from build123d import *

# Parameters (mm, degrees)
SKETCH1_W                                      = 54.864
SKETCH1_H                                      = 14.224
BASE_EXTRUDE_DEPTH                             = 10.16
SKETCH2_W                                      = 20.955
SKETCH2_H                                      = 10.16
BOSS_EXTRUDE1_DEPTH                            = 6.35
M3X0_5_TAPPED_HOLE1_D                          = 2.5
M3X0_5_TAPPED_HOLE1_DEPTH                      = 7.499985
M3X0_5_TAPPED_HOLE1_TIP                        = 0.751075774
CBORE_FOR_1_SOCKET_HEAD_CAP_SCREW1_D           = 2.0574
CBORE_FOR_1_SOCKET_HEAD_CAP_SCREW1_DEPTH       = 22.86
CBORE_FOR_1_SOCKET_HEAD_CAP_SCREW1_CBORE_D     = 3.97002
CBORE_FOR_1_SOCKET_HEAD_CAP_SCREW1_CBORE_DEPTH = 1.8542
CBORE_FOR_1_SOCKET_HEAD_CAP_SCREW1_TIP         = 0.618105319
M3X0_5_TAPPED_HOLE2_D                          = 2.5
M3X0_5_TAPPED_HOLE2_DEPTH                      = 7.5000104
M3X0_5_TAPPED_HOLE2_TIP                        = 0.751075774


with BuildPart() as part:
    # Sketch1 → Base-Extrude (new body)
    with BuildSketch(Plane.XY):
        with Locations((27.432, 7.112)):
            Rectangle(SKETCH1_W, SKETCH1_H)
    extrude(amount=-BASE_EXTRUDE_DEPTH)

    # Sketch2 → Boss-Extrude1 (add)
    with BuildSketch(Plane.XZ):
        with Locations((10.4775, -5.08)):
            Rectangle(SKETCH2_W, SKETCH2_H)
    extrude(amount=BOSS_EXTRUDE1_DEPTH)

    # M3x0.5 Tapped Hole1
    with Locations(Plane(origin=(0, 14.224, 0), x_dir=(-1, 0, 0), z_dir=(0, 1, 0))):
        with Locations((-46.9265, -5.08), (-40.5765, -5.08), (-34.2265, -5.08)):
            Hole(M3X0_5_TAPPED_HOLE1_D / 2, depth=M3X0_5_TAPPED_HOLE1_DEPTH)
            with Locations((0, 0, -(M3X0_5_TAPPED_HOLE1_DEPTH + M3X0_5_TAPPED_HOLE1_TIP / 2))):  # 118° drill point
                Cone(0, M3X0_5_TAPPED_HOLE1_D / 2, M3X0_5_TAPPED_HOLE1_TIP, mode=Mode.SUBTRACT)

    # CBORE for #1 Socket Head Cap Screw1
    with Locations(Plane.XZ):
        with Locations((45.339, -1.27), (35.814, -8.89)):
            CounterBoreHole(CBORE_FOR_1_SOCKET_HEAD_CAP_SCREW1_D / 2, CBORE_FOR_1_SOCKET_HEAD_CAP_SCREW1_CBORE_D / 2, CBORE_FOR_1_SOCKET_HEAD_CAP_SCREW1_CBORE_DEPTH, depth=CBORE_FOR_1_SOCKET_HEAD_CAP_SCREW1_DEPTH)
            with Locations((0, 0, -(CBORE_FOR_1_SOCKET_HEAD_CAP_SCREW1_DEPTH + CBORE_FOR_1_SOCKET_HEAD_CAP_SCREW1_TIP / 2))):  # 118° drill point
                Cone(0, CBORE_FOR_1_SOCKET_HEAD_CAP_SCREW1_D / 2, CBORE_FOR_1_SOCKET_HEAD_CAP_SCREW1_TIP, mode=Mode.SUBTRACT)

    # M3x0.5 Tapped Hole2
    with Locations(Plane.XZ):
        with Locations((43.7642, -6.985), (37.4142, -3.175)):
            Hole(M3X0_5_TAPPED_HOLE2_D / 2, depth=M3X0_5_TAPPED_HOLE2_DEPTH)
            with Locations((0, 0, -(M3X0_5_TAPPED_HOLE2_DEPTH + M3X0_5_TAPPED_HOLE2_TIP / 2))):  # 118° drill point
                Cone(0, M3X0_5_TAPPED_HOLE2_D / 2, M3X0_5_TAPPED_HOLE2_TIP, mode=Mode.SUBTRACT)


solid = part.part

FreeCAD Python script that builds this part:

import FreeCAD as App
import Part
import Sketcher
Q = App.Units.Quantity


def add_polygon(sketch, points):
    """Adds a closed chain of lines whose ends are joined by coincident constraints."""
    first, n = sketch.GeometryCount, len(points)
    for a, b in zip(points, points[1:] + points[:1]):
        sketch.addGeometry(Part.LineSegment(App.Vector(*a, 0), App.Vector(*b, 0)), False)
    for i in range(n):
        sketch.addConstraint(Sketcher.Constraint("Coincident", first + i, 2, first + (i + 1) % n, 1))

doc = App.newDocument("Part")
body = doc.addObject("PartDesign::Body", "Body")

# Sketch on XY plane
sketch1 = doc.addObject("Sketcher::SketchObject", "Sketch")
body.addObject(sketch1)
sketch1.AttachmentSupport = (doc.XY_Plane, [""])
sketch1.MapMode = "FlatFace"
add_polygon(sketch1, [(0, 14), (0, 0), (55, 0), (55, 14)])  # lines 0-3
sketch1.addConstraint([
    Sketcher.Constraint("Vertical", 0),
    Sketcher.Constraint("Horizontal", 1),
    Sketcher.Constraint("Vertical", 2),
    Sketcher.Constraint("Horizontal", 3),
    Sketcher.Constraint("Coincident", 0, 2, -1, 1),
    Sketcher.Constraint("DistanceX", 1, 1, 1, 2, Q("2.16 in")),
    Sketcher.Constraint("DistanceY", 0, 2, 0, 1, Q("0.56 in")),
])
pad1 = doc.addObject("PartDesign::Pad", "Pad")
body.addObject(pad1)
pad1.Profile = sketch1
pad1.Length = Q("0.4 in")
pad1.Reversed = True

# Sketch on XZ plane
sketch2 = doc.addObject("Sketcher::SketchObject", "Sketch001")
body.addObject(sketch2)
sketch2.AttachmentSupport = (doc.XZ_Plane, [""])
sketch2.MapMode = "FlatFace"
add_polygon(sketch2, [(0, 0), (0, -10), (21, -10), (21, 0)])  # lines 0-3
sketch2.addConstraint([
    Sketcher.Constraint("Vertical", 0),
    Sketcher.Constraint("Horizontal", 1),
    Sketcher.Constraint("Vertical", 2),
    Sketcher.Constraint("Horizontal", 3),
    Sketcher.Constraint("Coincident", 3, 2, -1, 1),
    Sketcher.Constraint("DistanceY", 0, 2, 0, 1, Q("0.4 in")),
    Sketcher.Constraint("DistanceX", 1, 1, 1, 2, Q("0.825 in")),
])
pad2 = doc.addObject("PartDesign::Pad", "Pad001")
body.addObject(pad2)
pad2.Profile = sketch2
pad2.Length = Q("0.25 in")

# Sketch on XZ plane
sketch3 = doc.addObject("Sketcher::SketchObject", "Sketch002")
body.addObject(sketch3)
sketch3.AttachmentSupport = (doc.XZ_Plane, [""])
sketch3.MapMode = "FlatFace"
sketch3.AttachmentOffset = App.Placement(App.Vector(0, 0, -0.56 * 25.4), App.Rotation())
sketch3.addGeometry([
    Part.Circle(App.Vector(46.9, -5.1, 0), App.Vector(0, 0, 1), 1.2),
    Part.Circle(App.Vector(40.6, -5.1, 0), App.Vector(0, 0, 1), 1.2),
    Part.Circle(App.Vector(34.2, -5.1, 0), App.Vector(0, 0, 1), 1.2),
], False)
sketch3.addConstraint([
    Sketcher.Constraint("Equal", 0, 1),
    Sketcher.Constraint("Equal", 1, 2),
    Sketcher.Constraint("Horizontal", 0, 3, 1, 3),
    Sketcher.Constraint("Horizontal", 1, 3, 2, 3),
    Sketcher.Constraint("DistanceY", 0, 3, -1, 1, Q("0.2 in")),
    Sketcher.Constraint("DistanceX", 2, 3, 0, 3, Q("0.5 in")),
    Sketcher.Constraint("Diameter", 0, 2.5),
    Sketcher.Constraint("DistanceX", 1, 3, 0, 3, Q("0.25 in")),
    Sketcher.Constraint("DistanceX", -1, 1, 0, 3, Q("1.8475 in")),
])
doc.recompute()
hole = doc.addObject("PartDesign::Hole", "Hole")
body.addObject(hole)
hole.Profile = sketch3
hole.ThreadType = "None"
hole.Diameter = 2.5
hole.DepthType = "Dimension"
hole.Depth = 7.499985
hole.DrillPoint = "Angled"
hole.DrillPointAngle = 118
hole.Reversed = True

# Sketch on XZ plane
sketch4 = doc.addObject("Sketcher::SketchObject", "Sketch003")
body.addObject(sketch4)
sketch4.AttachmentSupport = (doc.XZ_Plane, [""])
sketch4.MapMode = "FlatFace"
sketch4.addGeometry([
    Part.Circle(App.Vector(45.3, -1.3, 0), App.Vector(0, 0, 1), 1),
    Part.Circle(App.Vector(35.8, -8.9, 0), App.Vector(0, 0, 1), 1),
], False)
sketch4.addConstraint([
    Sketcher.Constraint("Equal", 0, 1),
    Sketcher.Constraint("Diameter", 0, Q("0.081 in")),
    Sketcher.Constraint("DistanceY", 1, 3, 0, 3, Q("0.3 in")),
    Sketcher.Constraint("DistanceY", 0, 3, -1, 1, Q("0.05 in")),
    Sketcher.Constraint("DistanceX", -1, 1, 1, 3, Q("1.41 in")),
    Sketcher.Constraint("DistanceX", -1, 1, 0, 3, Q("1.785 in")),
])
doc.recompute()
hole2 = doc.addObject("PartDesign::Hole", "Hole001")
body.addObject(hole2)
hole2.Profile = sketch4
hole2.ThreadType = "None"
hole2.Diameter = Q("0.081 in")
hole2.DepthType = "Dimension"
hole2.Depth = Q("0.9 in")
hole2.DrillPoint = "Angled"
hole2.DrillPointAngle = 118
hole2.HoleCutType = "Counterbore"
hole2.HoleCutDiameter = Q("0.1563 in")
hole2.HoleCutDepth = Q("0.073 in")

# Sketch on XZ plane
sketch5 = doc.addObject("Sketcher::SketchObject", "Sketch004")
body.addObject(sketch5)
sketch5.AttachmentSupport = (doc.XZ_Plane, [""])
sketch5.MapMode = "FlatFace"
sketch5.addGeometry([
    Part.Circle(App.Vector(43.8, -7, 0), App.Vector(0, 0, 1), 1.2),
    Part.Circle(App.Vector(37.4, -3.2, 0), App.Vector(0, 0, 1), 1.2),
], False)
sketch5.addConstraint([
    Sketcher.Constraint("Equal", 0, 1),
    Sketcher.Constraint("Diameter", 0, 2.5),
    Sketcher.Constraint("DistanceX", 1, 3, 0, 3, Q("0.25 in")),
    Sketcher.Constraint("DistanceY", 0, 3, 1, 3, Q("0.15 in")),
    Sketcher.Constraint("DistanceX", -1, 1, 0, 3, Q("1.723 in")),
    Sketcher.Constraint("DistanceY", 0, 3, -1, 1, Q("0.275 in")),
])
doc.recompute()
hole3 = doc.addObject("PartDesign::Hole", "Hole002")
body.addObject(hole3)
hole3.Profile = sketch5
hole3.ThreadType = "None"
hole3.Diameter = 2.5
hole3.DepthType = "Dimension"
hole3.Depth = 7.50001
hole3.DrillPoint = "Angled"
hole3.DrillPointAngle = 118

doc.recompute()
